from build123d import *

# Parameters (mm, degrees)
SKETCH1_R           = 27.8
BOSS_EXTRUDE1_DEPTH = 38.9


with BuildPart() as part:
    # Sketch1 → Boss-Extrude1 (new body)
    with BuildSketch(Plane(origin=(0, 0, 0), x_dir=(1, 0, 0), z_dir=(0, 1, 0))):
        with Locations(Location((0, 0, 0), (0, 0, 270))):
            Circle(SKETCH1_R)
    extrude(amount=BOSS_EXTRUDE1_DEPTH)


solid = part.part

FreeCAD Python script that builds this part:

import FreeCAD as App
import Part
import Sketcher
Q = App.Units.Quantity

doc = App.newDocument("Part")
body = doc.addObject("PartDesign::Body", "Body")

# Sketch on XZ plane
sketch1 = body.newObject("Sketcher::SketchObject", "Sketch")
sketch1.AttachmentSupport = (doc.getObject("XZ_Plane"), [""])
sketch1.MapMode = "FlatFace"
sketch1.addGeometry(Part.Circle(App.Vector(0, 0, 0), App.Vector(0, 0, 1), 27.8), False)
sketch1.addConstraint([
    Sketcher.Constraint("Coincident", 0, 3, -1, 1),
    Sketcher.Constraint("Diameter", 0, Q("55.6 mm")),
])
pad1 = body.newObject("PartDesign::Pad", "Pad")
pad1.Profile = sketch1
pad1.Length = 38.9
pad1.Reversed = True

doc.recompute()
